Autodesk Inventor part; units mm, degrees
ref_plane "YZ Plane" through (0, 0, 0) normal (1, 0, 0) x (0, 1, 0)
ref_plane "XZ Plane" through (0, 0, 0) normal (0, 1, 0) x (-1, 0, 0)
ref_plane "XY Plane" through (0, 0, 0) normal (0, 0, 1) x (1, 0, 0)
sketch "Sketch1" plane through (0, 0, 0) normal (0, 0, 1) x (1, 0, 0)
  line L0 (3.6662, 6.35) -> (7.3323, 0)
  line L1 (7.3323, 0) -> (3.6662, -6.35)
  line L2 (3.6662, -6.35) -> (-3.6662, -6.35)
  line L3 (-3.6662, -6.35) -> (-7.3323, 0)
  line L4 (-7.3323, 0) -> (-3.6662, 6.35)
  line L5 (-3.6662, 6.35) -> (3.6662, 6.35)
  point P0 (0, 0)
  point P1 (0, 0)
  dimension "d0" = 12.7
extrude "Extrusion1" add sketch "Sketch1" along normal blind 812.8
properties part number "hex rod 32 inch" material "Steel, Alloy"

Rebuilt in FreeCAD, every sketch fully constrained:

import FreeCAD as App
import Part
import Sketcher
Q = App.Units.Quantity

doc = App.newDocument("Part")
body = doc.addObject("PartDesign::Body", "Body")

sketch1 = body.newObject("Sketcher::SketchObject", "Sketch")
sketch1.AttachmentSupport = (doc.getObject("XY_Plane"), [""])
sketch1.MapMode = "FlatFace"
sketch1.addGeometry([
    Part.LineSegment(App.Vector(7.3323, 0, 0), App.Vector(3.6662, 6.35, 0)),
    Part.LineSegment(App.Vector(3.6662, 6.35, 0), App.Vector(-3.6662, 6.35, 0)),
    Part.LineSegment(App.Vector(-3.6662, 6.35, 0), App.Vector(-7.3323, 0, 0)),
    Part.LineSegment(App.Vector(-7.3323, 0, 0), App.Vector(-3.6662, -6.35, 0)),
    Part.LineSegment(App.Vector(-3.6662, -6.35, 0), App.Vector(3.6662, -6.35, 0)),
    Part.LineSegment(App.Vector(3.6662, -6.35, 0), App.Vector(7.3323, 0, 0)),
], False)
sketch1.addConstraint([
    Sketcher.Constraint("Coincident", 0, 2, 1, 1),
    Sketcher.Constraint("Coincident", 1, 2, 2, 1),
    Sketcher.Constraint("Coincident", 2, 2, 3, 1),
    Sketcher.Constraint("Coincident", 3, 2, 4, 1),
    Sketcher.Constraint("Coincident", 4, 2, 5, 1),
    Sketcher.Constraint("Coincident", 5, 2, 0, 1),
    Sketcher.Constraint("Horizontal", 1),
    Sketcher.Constraint("Horizontal", 4),
    Sketcher.Constraint("Symmetric", 0, 2, 3, 2, -1, 1),
    Sketcher.Constraint("Symmetric", 2, 2, 5, 2, -1, 1),
    Sketcher.Constraint("PointOnObject", 2, 2, -1),
    Sketcher.Constraint("Parallel", 2, 5),
    Sketcher.Constraint("Vertical", 1, 2, 3, 2),
    Sketcher.Constraint("DistanceY", 3, 2, 1, 2, Q("0.5 in")),
    Sketcher.Constraint("Angle", 0, Q("119.9995 deg")),
    Sketcher.Constraint("DistanceX", 2, 2, 0, 2, Q("0.433 in")),
])
pad1 = body.newObject("PartDesign::Pad", "Pad")
pad1.Profile = sketch1
pad1.Length = Q("32 in")

doc.recompute()
